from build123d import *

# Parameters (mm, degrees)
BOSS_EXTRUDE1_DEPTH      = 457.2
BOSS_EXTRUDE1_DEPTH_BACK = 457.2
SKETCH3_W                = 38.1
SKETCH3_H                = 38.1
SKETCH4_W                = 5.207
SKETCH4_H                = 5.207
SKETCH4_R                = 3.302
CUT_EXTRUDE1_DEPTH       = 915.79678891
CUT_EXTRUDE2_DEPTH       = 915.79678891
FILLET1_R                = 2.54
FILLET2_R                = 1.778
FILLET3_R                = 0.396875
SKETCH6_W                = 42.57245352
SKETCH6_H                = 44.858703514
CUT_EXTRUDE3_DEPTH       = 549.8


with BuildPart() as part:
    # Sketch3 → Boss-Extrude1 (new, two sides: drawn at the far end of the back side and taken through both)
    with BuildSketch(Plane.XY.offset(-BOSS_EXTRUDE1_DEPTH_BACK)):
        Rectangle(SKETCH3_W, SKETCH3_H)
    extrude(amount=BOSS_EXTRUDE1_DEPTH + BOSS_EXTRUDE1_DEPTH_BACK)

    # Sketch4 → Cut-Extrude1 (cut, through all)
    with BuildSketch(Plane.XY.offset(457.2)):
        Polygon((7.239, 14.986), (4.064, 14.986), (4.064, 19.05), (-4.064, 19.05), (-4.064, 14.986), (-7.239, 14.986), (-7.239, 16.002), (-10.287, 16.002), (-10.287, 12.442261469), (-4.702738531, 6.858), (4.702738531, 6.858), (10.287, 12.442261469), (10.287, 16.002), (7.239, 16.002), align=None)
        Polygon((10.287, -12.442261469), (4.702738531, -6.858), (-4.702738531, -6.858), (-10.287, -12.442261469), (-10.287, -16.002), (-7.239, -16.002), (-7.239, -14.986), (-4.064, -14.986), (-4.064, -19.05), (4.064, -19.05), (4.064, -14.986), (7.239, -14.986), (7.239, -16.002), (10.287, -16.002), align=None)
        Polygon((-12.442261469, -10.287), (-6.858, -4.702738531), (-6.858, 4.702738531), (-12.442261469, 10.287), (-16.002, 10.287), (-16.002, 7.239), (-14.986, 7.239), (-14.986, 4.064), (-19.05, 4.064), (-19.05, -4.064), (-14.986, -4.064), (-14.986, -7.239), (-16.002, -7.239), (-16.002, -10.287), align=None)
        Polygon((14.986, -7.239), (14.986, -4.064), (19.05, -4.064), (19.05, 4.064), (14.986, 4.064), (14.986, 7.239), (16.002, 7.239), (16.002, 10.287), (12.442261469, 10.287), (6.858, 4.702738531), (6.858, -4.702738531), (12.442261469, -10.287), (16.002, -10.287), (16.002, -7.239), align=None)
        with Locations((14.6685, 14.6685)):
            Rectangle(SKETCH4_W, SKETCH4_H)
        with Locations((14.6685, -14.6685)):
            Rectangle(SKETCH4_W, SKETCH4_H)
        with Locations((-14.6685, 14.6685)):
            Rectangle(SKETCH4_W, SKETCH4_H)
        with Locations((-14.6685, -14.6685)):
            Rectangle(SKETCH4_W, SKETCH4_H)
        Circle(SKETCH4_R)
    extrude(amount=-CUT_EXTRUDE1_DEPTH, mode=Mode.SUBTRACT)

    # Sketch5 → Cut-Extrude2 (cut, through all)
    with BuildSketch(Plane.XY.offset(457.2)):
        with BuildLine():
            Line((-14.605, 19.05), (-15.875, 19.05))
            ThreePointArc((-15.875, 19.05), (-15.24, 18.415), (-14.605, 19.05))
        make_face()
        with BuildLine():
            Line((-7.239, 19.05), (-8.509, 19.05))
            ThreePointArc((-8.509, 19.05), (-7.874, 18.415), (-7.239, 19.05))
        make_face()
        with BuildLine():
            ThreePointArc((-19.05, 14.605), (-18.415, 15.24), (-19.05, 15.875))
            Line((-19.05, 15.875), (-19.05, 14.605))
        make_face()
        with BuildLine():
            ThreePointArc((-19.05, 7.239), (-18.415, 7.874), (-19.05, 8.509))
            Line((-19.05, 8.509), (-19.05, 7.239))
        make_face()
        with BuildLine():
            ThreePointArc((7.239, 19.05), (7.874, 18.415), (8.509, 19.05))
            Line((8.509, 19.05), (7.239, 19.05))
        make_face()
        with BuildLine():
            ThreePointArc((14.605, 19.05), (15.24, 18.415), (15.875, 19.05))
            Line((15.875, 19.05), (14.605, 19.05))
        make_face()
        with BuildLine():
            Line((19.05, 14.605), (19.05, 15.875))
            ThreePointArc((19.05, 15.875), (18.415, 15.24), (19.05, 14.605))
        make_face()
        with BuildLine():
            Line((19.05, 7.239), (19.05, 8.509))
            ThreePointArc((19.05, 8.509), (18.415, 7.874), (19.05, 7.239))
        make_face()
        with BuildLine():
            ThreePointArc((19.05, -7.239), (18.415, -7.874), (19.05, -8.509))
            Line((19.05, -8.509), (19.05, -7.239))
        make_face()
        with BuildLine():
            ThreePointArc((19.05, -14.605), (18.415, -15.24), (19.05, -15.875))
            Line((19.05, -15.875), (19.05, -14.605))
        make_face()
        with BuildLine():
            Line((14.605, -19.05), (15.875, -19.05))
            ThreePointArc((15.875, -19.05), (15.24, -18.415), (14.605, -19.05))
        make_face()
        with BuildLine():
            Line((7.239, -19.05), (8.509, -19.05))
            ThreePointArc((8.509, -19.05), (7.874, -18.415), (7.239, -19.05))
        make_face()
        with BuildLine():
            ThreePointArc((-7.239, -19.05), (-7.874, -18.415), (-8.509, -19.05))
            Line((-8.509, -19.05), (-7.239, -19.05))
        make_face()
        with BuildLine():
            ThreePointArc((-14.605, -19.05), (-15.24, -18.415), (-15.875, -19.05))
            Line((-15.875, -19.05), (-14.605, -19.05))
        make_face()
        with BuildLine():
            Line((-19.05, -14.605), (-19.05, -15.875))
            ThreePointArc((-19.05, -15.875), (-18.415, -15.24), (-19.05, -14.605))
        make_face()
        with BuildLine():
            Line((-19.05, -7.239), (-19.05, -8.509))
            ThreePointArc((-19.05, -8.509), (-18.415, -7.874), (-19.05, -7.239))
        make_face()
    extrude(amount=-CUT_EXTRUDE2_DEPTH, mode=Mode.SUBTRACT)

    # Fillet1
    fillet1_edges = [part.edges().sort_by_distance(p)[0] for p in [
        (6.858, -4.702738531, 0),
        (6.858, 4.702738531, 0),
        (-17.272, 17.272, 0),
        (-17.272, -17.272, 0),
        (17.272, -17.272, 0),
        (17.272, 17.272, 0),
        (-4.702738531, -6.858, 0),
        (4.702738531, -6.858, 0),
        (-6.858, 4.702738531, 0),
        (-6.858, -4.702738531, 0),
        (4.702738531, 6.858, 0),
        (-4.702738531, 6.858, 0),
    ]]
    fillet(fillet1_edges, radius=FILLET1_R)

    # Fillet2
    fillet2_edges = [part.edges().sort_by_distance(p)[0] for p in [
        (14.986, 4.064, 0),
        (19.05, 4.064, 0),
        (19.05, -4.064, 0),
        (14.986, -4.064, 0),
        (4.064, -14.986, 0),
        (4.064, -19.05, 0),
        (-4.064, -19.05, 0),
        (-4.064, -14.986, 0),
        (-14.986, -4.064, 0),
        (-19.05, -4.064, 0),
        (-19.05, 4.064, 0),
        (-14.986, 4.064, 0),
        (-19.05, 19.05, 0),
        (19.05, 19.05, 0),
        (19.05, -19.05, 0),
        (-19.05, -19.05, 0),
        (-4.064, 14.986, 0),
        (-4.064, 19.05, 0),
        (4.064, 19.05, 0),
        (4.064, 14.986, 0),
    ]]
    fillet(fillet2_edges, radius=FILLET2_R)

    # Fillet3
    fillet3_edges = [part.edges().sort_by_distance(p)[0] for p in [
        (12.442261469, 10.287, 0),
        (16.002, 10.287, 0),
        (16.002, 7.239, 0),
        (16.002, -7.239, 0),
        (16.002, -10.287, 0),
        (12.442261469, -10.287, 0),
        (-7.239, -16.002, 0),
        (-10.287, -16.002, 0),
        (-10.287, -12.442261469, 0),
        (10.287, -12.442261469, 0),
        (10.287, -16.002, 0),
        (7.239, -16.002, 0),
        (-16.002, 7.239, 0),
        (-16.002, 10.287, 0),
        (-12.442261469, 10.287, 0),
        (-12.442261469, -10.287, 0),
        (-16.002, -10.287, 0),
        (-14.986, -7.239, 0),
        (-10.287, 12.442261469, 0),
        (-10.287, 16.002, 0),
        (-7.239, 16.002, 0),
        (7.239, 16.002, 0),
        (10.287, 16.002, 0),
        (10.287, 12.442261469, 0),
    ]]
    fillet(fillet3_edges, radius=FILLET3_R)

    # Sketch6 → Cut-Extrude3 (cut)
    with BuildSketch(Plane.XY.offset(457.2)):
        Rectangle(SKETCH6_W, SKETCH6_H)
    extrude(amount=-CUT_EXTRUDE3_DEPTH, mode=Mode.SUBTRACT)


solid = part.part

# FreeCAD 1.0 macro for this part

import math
import FreeCAD as App
import Part
import Sketcher
Q = App.Units.Quantity


def edges_at(feature, points):
    """Names of the edges that pass closest to the given points."""
    edges = feature.Shape.Edges
    near = lambda p: min(range(len(edges)), key=lambda i: edges[i].distToShape(Part.Vertex(*p))[0])
    return sorted({f"Edge{near(p) + 1}" for p in points})

doc = App.newDocument("Part")
body = doc.addObject("PartDesign::Body", "Body")

sketch1 = body.newObject("Sketcher::SketchObject", "Sketch")
sketch1.AttachmentSupport = (doc.getObject("XY_Plane"), [""])
sketch1.MapMode = "FlatFace"
sketch1.addGeometry(Part.LineSegment(App.Vector(-19, 19, 0), App.Vector(-19, -19, 0)), False)
sketch1.addGeometry(Part.LineSegment(App.Vector(-19, -19, 0), App.Vector(19, -19, 0)), False)
sketch1.addGeometry(Part.LineSegment(App.Vector(19, -19, 0), App.Vector(19, 19, 0)), False)
sketch1.addGeometry(Part.LineSegment(App.Vector(19, 19, 0), App.Vector(-19, 19, 0)), False)
sketch1.addConstraint(Sketcher.Constraint("Coincident", 0, 2, 1, 1))
sketch1.addConstraint(Sketcher.Constraint("Coincident", 1, 2, 2, 1))
sketch1.addConstraint(Sketcher.Constraint("Coincident", 2, 2, 3, 1))
sketch1.addConstraint(Sketcher.Constraint("Coincident", 3, 2, 0, 1))
sketch1.addConstraint(Sketcher.Constraint("Vertical", 0))
sketch1.addConstraint(Sketcher.Constraint("Horizontal", 1))
sketch1.addConstraint(Sketcher.Constraint("Vertical", 2))
sketch1.addConstraint(Sketcher.Constraint("Horizontal", 3))
sketch1.addConstraint(Sketcher.Constraint("Symmetric", 0, 2, 2, 2, -1, 1))
sketch1.addConstraint(Sketcher.Constraint("Equal", 3, 0))
sketch1.addConstraint(Sketcher.Constraint("DistanceX", 1, 1, 1, 2, Q("1.5 in")))
pad1 = body.newObject("PartDesign::Pad", "Pad")
pad1.Profile = sketch1
pad1.Type = "TwoLengths"
pad1.Length = Q("18 in")
pad1.Length2 = Q("18 in")

sketch2 = body.newObject("Sketcher::SketchObject", "Sketch001")
sketch2.AttachmentSupport = (doc.getObject("XY_Plane"), [""])
sketch2.MapMode = "FlatFace"
sketch2.AttachmentOffset = App.Placement(App.Vector(0, 0, 18 * 25.4), App.Rotation())
sketch2.addGeometry(Part.LineSegment(App.Vector(7.2, 15, 0), App.Vector(4.1, 15, 0)), False)
sketch2.addGeometry(Part.LineSegment(App.Vector(4.1, 15, 0), App.Vector(4.1, 19.1, 0)), False)
sketch2.addGeometry(Part.LineSegment(App.Vector(4.1, 19.1, 0), App.Vector(-4.1, 19.1, 0)), False)
sketch2.addGeometry(Part.LineSegment(App.Vector(-4.1, 19.1, 0), App.Vector(-4.1, 15, 0)), False)
sketch2.addGeometry(Part.LineSegment(App.Vector(-4.1, 15, 0), App.Vector(-7.2, 15, 0)), False)
sketch2.addGeometry(Part.LineSegment(App.Vector(-7.2, 15, 0), App.Vector(-7.2, 16, 0)), False)
sketch2.addGeometry(Part.LineSegment(App.Vector(-7.2, 16, 0), App.Vector(-10.3, 16, 0)), False)
sketch2.addGeometry(Part.LineSegment(App.Vector(-10.3, 16, 0), App.Vector(-10.3, 12.4, 0)), False)
sketch2.addGeometry(Part.LineSegment(App.Vector(-10.3, 12.4, 0), App.Vector(-4.7, 6.9, 0)), False)
sketch2.addGeometry(Part.LineSegment(App.Vector(-4.7, 6.9, 0), App.Vector(4.7, 6.9, 0)), False)
sketch2.addGeometry(Part.LineSegment(App.Vector(4.7, 6.9, 0), App.Vector(10.3, 12.4, 0)), False)
sketch2.addGeometry(Part.LineSegment(App.Vector(10.3, 12.4, 0), App.Vector(10.3, 16, 0)), False)
sketch2.addGeometry(Part.LineSegment(App.Vector(10.3, 16, 0), App.Vector(7.2, 16, 0)), False)
sketch2.addGeometry(Part.LineSegment(App.Vector(7.2, 16, 0), App.Vector(7.2, 15, 0)), False)
sketch2.addGeometry(Part.LineSegment(App.Vector(10.3, -12.4, 0), App.Vector(4.7, -6.9, 0)), False)
sketch2.addGeometry(Part.LineSegment(App.Vector(4.7, -6.9, 0), App.Vector(-4.7, -6.9, 0)), False)
sketch2.addGeometry(Part.LineSegment(App.Vector(-4.7, -6.9, 0), App.Vector(-10.3, -12.4, 0)), False)
sketch2.addGeometry(Part.LineSegment(App.Vector(-10.3, -12.4, 0), App.Vector(-10.3, -16, 0)), False)
sketch2.addGeometry(Part.LineSegment(App.Vector(-10.3, -16, 0), App.Vector(-7.2, -16, 0)), False)
sketch2.addGeometry(Part.LineSegment(App.Vector(-7.2, -16, 0), App.Vector(-7.2, -15, 0)), False)
sketch2.addGeometry(Part.LineSegment(App.Vector(-7.2, -15, 0), App.Vector(-4.1, -15, 0)), False)
sketch2.addGeometry(Part.LineSegment(App.Vector(-4.1, -15, 0), App.Vector(-4.1, -19.1, 0)), False)
sketch2.addGeometry(Part.LineSegment(App.Vector(-4.1, -19.1, 0), App.Vector(4.1, -19.1, 0)), False)
sketch2.addGeometry(Part.LineSegment(App.Vector(4.1, -19.1, 0), App.Vector(4.1, -15, 0)), False)
sketch2.addGeometry(Part.LineSegment(App.Vector(4.1, -15, 0), App.Vector(7.2, -15, 0)), False)
sketch2.addGeometry(Part.LineSegment(App.Vector(7.2, -15, 0), App.Vector(7.2, -16, 0)), False)
sketch2.addGeometry(Part.LineSegment(App.Vector(7.2, -16, 0), App.Vector(10.3, -16, 0)), False)
sketch2.addGeometry(Part.LineSegment(App.Vector(10.3, -16, 0), App.Vector(10.3, -12.4, 0)), False)
sketch2.addGeometry(Part.LineSegment(App.Vector(-12.4, -10.3, 0), App.Vector(-6.9, -4.7, 0)), False)
sketch2.addGeometry(Part.LineSegment(App.Vector(-6.9, -4.7, 0), App.Vector(-6.9, 4.7, 0)), False)
sketch2.addGeometry(Part.LineSegment(App.Vector(-6.9, 4.7, 0), App.Vector(-12.4, 10.3, 0)), False)
sketch2.addGeometry(Part.LineSegment(App.Vector(-12.4, 10.3, 0), App.Vector(-16, 10.3, 0)), False)
sketch2.addGeometry(Part.LineSegment(App.Vector(-16, 10.3, 0), App.Vector(-16, 7.2, 0)), False)
sketch2.addGeometry(Part.LineSegment(App.Vector(-16, 7.2, 0), App.Vector(-15, 7.2, 0)), False)
sketch2.addGeometry(Part.LineSegment(App.Vector(-15, 7.2, 0), App.Vector(-15, 4.1, 0)), False)
sketch2.addGeometry(Part.LineSegment(App.Vector(-15, 4.1, 0), App.Vector(-19.1, 4.1, 0)), False)
sketch2.addGeometry(Part.LineSegment(App.Vector(-19.1, 4.1, 0), App.Vector(-19.1, -4.1, 0)), False)
sketch2.addGeometry(Part.LineSegment(App.Vector(-19.1, -4.1, 0), App.Vector(-15, -4.1, 0)), False)
sketch2.addGeometry(Part.LineSegment(App.Vector(-15, -4.1, 0), App.Vector(-15, -7.2, 0)), False)
sketch2.addGeometry(Part.LineSegment(App.Vector(-15, -7.2, 0), App.Vector(-16, -7.2, 0)), False)
sketch2.addGeometry(Part.LineSegment(App.Vector(-16, -7.2, 0), App.Vector(-16, -10.3, 0)), False)
sketch2.addGeometry(Part.LineSegment(App.Vector(-16, -10.3, 0), App.Vector(-12.4, -10.3, 0)), False)
sketch2.addGeometry(Part.LineSegment(App.Vector(15, -7.2, 0), App.Vector(15, -4.1, 0)), False)
sketch2.addGeometry(Part.LineSegment(App.Vector(15, -4.1, 0), App.Vector(19.1, -4.1, 0)), False)
sketch2.addGeometry(Part.LineSegment(App.Vector(19.1, -4.1, 0), App.Vector(19.1, 4.1, 0)), False)
sketch2.addGeometry(Part.LineSegment(App.Vector(19.1, 4.1, 0), App.Vector(15, 4.1, 0)), False)
sketch2.addGeometry(Part.LineSegment(App.Vector(15, 4.1, 0), App.Vector(15, 7.2, 0)), False)
sketch2.addGeometry(Part.LineSegment(App.Vector(15, 7.2, 0), App.Vector(16, 7.2, 0)), False)
sketch2.addGeometry(Part.LineSegment(App.Vector(16, 7.2, 0), App.Vector(16, 10.3, 0)), False)
sketch2.addGeometry(Part.LineSegment(App.Vector(16, 10.3, 0), App.Vector(12.4, 10.3, 0)), False)
sketch2.addGeometry(Part.LineSegment(App.Vector(12.4, 10.3, 0), App.Vector(6.9, 4.7, 0)), False)
sketch2.addGeometry(Part.LineSegment(App.Vector(6.9, 4.7, 0), App.Vector(6.9, -4.7, 0)), False)
sketch2.addGeometry(Part.LineSegment(App.Vector(6.9, -4.7, 0), App.Vector(12.4, -10.3, 0)), False)
sketch2.addGeometry(Part.LineSegment(App.Vector(12.4, -10.3, 0), App.Vector(16, -10.3, 0)), False)
sketch2.addGeometry(Part.LineSegment(App.Vector(16, -10.3, 0), App.Vector(16, -7.2, 0)), False)
sketch2.addGeometry(Part.LineSegment(App.Vector(16, -7.2, 0), App.Vector(15, -7.2, 0)), False)
sketch2.addGeometry(Part.LineSegment(App.Vector(12.1, 17.3, 0), App.Vector(12.1, 12.1, 0)), False)
sketch2.addGeometry(Part.LineSegment(App.Vector(12.1, 12.1, 0), App.Vector(17.3, 12.1, 0)), False)
sketch2.addGeometry(Part.LineSegment(App.Vector(17.3, 12.1, 0), App.Vector(17.3, 17.3, 0)), False)
sketch2.addGeometry(Part.LineSegment(App.Vector(17.3, 17.3, 0), App.Vector(12.1, 17.3, 0)), False)
sketch2.addGeometry(Part.LineSegment(App.Vector(12.1, -12.1, 0), App.Vector(12.1, -17.3, 0)), False)
sketch2.addGeometry(Part.LineSegment(App.Vector(12.1, -17.3, 0), App.Vector(17.3, -17.3, 0)), False)
sketch2.addGeometry(Part.LineSegment(App.Vector(17.3, -17.3, 0), App.Vector(17.3, -12.1, 0)), False)
sketch2.addGeometry(Part.LineSegment(App.Vector(17.3, -12.1, 0), App.Vector(12.1, -12.1, 0)), False)
sketch2.addGeometry(Part.LineSegment(App.Vector(-17.3, 17.3, 0), App.Vector(-17.3, 12.1, 0)), False)
sketch2.addGeometry(Part.LineSegment(App.Vector(-17.3, 12.1, 0), App.Vector(-12.1, 12.1, 0)), False)
sketch2.addGeometry(Part.LineSegment(App.Vector(-12.1, 12.1, 0), App.Vector(-12.1, 17.3, 0)), False)
sketch2.addGeometry(Part.LineSegment(App.Vector(-12.1, 17.3, 0), App.Vector(-17.3, 17.3, 0)), False)
sketch2.addGeometry(Part.LineSegment(App.Vector(-17.3, -12.1, 0), App.Vector(-17.3, -17.3, 0)), False)
sketch2.addGeometry(Part.LineSegment(App.Vector(-17.3, -17.3, 0), App.Vector(-12.1, -17.3, 0)), False)
sketch2.addGeometry(Part.LineSegment(App.Vector(-12.1, -17.3, 0), App.Vector(-12.1, -12.1, 0)), False)
sketch2.addGeometry(Part.LineSegment(App.Vector(-12.1, -12.1, 0), App.Vector(-17.3, -12.1, 0)), False)
sketch2.addGeometry(Part.Circle(App.Vector(0, 0, 0), App.Vector(0, 0, 1), 3.3), False)
sketch2.addConstraint(Sketcher.Constraint("Coincident", 0, 2, 1, 1))
sketch2.addConstraint(Sketcher.Constraint("Coincident", 1, 2, 2, 1))
sketch2.addConstraint(Sketcher.Constraint("Coincident", 2, 2, 3, 1))
sketch2.addConstraint(Sketcher.Constraint("Coincident", 3, 2, 4, 1))
sketch2.addConstraint(Sketcher.Constraint("Coincident", 4, 2, 5, 1))
sketch2.addConstraint(Sketcher.Constraint("Coincident", 5, 2, 6, 1))
sketch2.addConstraint(Sketcher.Constraint("Coincident", 6, 2, 7, 1))
sketch2.addConstraint(Sketcher.Constraint("Coincident", 7, 2, 8, 1))
sketch2.addConstraint(Sketcher.Constraint("Coincident", 8, 2, 9, 1))
sketch2.addConstraint(Sketcher.Constraint("Coincident", 9, 2, 10, 1))
sketch2.addConstraint(Sketcher.Constraint("Coincident", 10, 2, 11, 1))
sketch2.addConstraint(Sketcher.Constraint("Coincident", 11, 2, 12, 1))
sketch2.addConstraint(Sketcher.Constraint("Coincident", 12, 2, 13, 1))
sketch2.addConstraint(Sketcher.Constraint("Coincident", 13, 2, 0, 1))
sketch2.addConstraint(Sketcher.Constraint("Coincident", 14, 2, 15, 1))
sketch2.addConstraint(Sketcher.Constraint("Coincident", 15, 2, 16, 1))
sketch2.addConstraint(Sketcher.Constraint("Coincident", 16, 2, 17, 1))
sketch2.addConstraint(Sketcher.Constraint("Coincident", 17, 2, 18, 1))
sketch2.addConstraint(Sketcher.Constraint("Coincident", 18, 2, 19, 1))
sketch2.addConstraint(Sketcher.Constraint("Coincident", 19, 2, 20, 1))
sketch2.addConstraint(Sketcher.Constraint("Coincident", 20, 2, 21, 1))
sketch2.addConstraint(Sketcher.Constraint("Coincident", 21, 2, 22, 1))
sketch2.addConstraint(Sketcher.Constraint("Coincident", 22, 2, 23, 1))
sketch2.addConstraint(Sketcher.Constraint("Coincident", 23, 2, 24, 1))
sketch2.addConstraint(Sketcher.Constraint("Coincident", 24, 2, 25, 1))
sketch2.addConstraint(Sketcher.Constraint("Coincident", 25, 2, 26, 1))
sketch2.addConstraint(Sketcher.Constraint("Coincident", 26, 2, 27, 1))
sketch2.addConstraint(Sketcher.Constraint("Coincident", 27, 2, 14, 1))
sketch2.addConstraint(Sketcher.Constraint("Coincident", 28, 2, 29, 1))
sketch2.addConstraint(Sketcher.Constraint("Coincident", 29, 2, 30, 1))
sketch2.addConstraint(Sketcher.Constraint("Coincident", 30, 2, 31, 1))
sketch2.addConstraint(Sketcher.Constraint("Coincident", 31, 2, 32, 1))
sketch2.addConstraint(Sketcher.Constraint("Coincident", 32, 2, 33, 1))
sketch2.addConstraint(Sketcher.Constraint("Coincident", 33, 2, 34, 1))
sketch2.addConstraint(Sketcher.Constraint("Coincident", 34, 2, 35, 1))
sketch2.addConstraint(Sketcher.Constraint("Coincident", 35, 2, 36, 1))
sketch2.addConstraint(Sketcher.Constraint("Coincident", 36, 2, 37, 1))
sketch2.addConstraint(Sketcher.Constraint("Coincident", 37, 2, 38, 1))
sketch2.addConstraint(Sketcher.Constraint("Coincident", 38, 2, 39, 1))
sketch2.addConstraint(Sketcher.Constraint("Coincident", 39, 2, 40, 1))
sketch2.addConstraint(Sketcher.Constraint("Coincident", 40, 2, 41, 1))
sketch2.addConstraint(Sketcher.Constraint("Coincident", 41, 2, 28, 1))
sketch2.addConstraint(Sketcher.Constraint("Coincident", 42, 2, 43, 1))
sketch2.addConstraint(Sketcher.Constraint("Coincident", 43, 2, 44, 1))
sketch2.addConstraint(Sketcher.Constraint("Coincident", 44, 2, 45, 1))
sketch2.addConstraint(Sketcher.Constraint("Coincident", 45, 2, 46, 1))
sketch2.addConstraint(Sketcher.Constraint("Coincident", 46, 2, 47, 1))
sketch2.addConstraint(Sketcher.Constraint("Coincident", 47, 2, 48, 1))
sketch2.addConstraint(Sketcher.Constraint("Coincident", 48, 2, 49, 1))
sketch2.addConstraint(Sketcher.Constraint("Coincident", 49, 2, 50, 1))
sketch2.addConstraint(Sketcher.Constraint("Coincident", 50, 2, 51, 1))
sketch2.addConstraint(Sketcher.Constraint("Coincident", 51, 2, 52, 1))
sketch2.addConstraint(Sketcher.Constraint("Coincident", 52, 2, 53, 1))
sketch2.addConstraint(Sketcher.Constraint("Coincident", 53, 2, 54, 1))
sketch2.addConstraint(Sketcher.Constraint("Coincident", 54, 2, 55, 1))
sketch2.addConstraint(Sketcher.Constraint("Coincident", 55, 2, 42, 1))
sketch2.addConstraint(Sketcher.Constraint("Coincident", 56, 2, 57, 1))
sketch2.addConstraint(Sketcher.Constraint("Coincident", 57, 2, 58, 1))
sketch2.addConstraint(Sketcher.Constraint("Coincident", 58, 2, 59, 1))
sketch2.addConstraint(Sketcher.Constraint("Coincident", 59, 2, 56, 1))
sketch2.addConstraint(Sketcher.Constraint("Coincident", 60, 2, 61, 1))
sketch2.addConstraint(Sketcher.Constraint("Coincident", 61, 2, 62, 1))
sketch2.addConstraint(Sketcher.Constraint("Coincident", 62, 2, 63, 1))
sketch2.addConstraint(Sketcher.Constraint("Coincident", 63, 2, 60, 1))
sketch2.addConstraint(Sketcher.Constraint("Coincident", 64, 2, 65, 1))
sketch2.addConstraint(Sketcher.Constraint("Coincident", 65, 2, 66, 1))
sketch2.addConstraint(Sketcher.Constraint("Coincident", 66, 2, 67, 1))
sketch2.addConstraint(Sketcher.Constraint("Coincident", 67, 2, 64, 1))
sketch2.addConstraint(Sketcher.Constraint("Coincident", 68, 2, 69, 1))
sketch2.addConstraint(Sketcher.Constraint("Coincident", 69, 2, 70, 1))
sketch2.addConstraint(Sketcher.Constraint("Coincident", 70, 2, 71, 1))
sketch2.addConstraint(Sketcher.Constraint("Coincident", 71, 2, 68, 1))
sketch2.addConstraint(Sketcher.Constraint("Horizontal", 0))
sketch2.addConstraint(Sketcher.Constraint("Vertical", 1))
sketch2.addConstraint(Sketcher.Constraint("Horizontal", 2))
sketch2.addConstraint(Sketcher.Constraint("Vertical", 3))
sketch2.addConstraint(Sketcher.Constraint("Horizontal", 4))
sketch2.addConstraint(Sketcher.Constraint("Vertical", 5))
sketch2.addConstraint(Sketcher.Constraint("Horizontal", 6))
sketch2.addConstraint(Sketcher.Constraint("Vertical", 7))
sketch2.addConstraint(Sketcher.Constraint("Horizontal", 9))
sketch2.addConstraint(Sketcher.Constraint("Vertical", 11))
sketch2.addConstraint(Sketcher.Constraint("Horizontal", 12))
sketch2.addConstraint(Sketcher.Constraint("Vertical", 13))
sketch2.addConstraint(Sketcher.Constraint("Horizontal", 15))
sketch2.addConstraint(Sketcher.Constraint("Vertical", 17))
sketch2.addConstraint(Sketcher.Constraint("Horizontal", 18))
sketch2.addConstraint(Sketcher.Constraint("Vertical", 19))
sketch2.addConstraint(Sketcher.Constraint("Horizontal", 20))
sketch2.addConstraint(Sketcher.Constraint("Vertical", 21))
sketch2.addConstraint(Sketcher.Constraint("Horizontal", 22))
sketch2.addConstraint(Sketcher.Constraint("Vertical", 23))
sketch2.addConstraint(Sketcher.Constraint("Horizontal", 24))
sketch2.addConstraint(Sketcher.Constraint("Vertical", 25))
sketch2.addConstraint(Sketcher.Constraint("Horizontal", 26))
sketch2.addConstraint(Sketcher.Constraint("Vertical", 27))
sketch2.addConstraint(Sketcher.Constraint("Vertical", 29))
sketch2.addConstraint(Sketcher.Constraint("Horizontal", 31))
sketch2.addConstraint(Sketcher.Constraint("Vertical", 32))
sketch2.addConstraint(Sketcher.Constraint("Horizontal", 33))
sketch2.addConstraint(Sketcher.Constraint("Vertical", 34))
sketch2.addConstraint(Sketcher.Constraint("Horizontal", 35))
sketch2.addConstraint(Sketcher.Constraint("Vertical", 36))
sketch2.addConstraint(Sketcher.Constraint("Horizontal", 37))
sketch2.addConstraint(Sketcher.Constraint("Vertical", 38))
sketch2.addConstraint(Sketcher.Constraint("Horizontal", 39))
sketch2.addConstraint(Sketcher.Constraint("Vertical", 40))
sketch2.addConstraint(Sketcher.Constraint("Horizontal", 41))
sketch2.addConstraint(Sketcher.Constraint("Vertical", 42))
sketch2.addConstraint(Sketcher.Constraint("Horizontal", 43))
sketch2.addConstraint(Sketcher.Constraint("Vertical", 44))
sketch2.addConstraint(Sketcher.Constraint("Horizontal", 45))
sketch2.addConstraint(Sketcher.Constraint("Vertical", 46))
sketch2.addConstraint(Sketcher.Constraint("Horizontal", 47))
sketch2.addConstraint(Sketcher.Constraint("Vertical", 48))
sketch2.addConstraint(Sketcher.Constraint("Horizontal", 49))
sketch2.addConstraint(Sketcher.Constraint("Vertical", 51))
sketch2.addConstraint(Sketcher.Constraint("Horizontal", 53))
sketch2.addConstraint(Sketcher.Constraint("Vertical", 54))
sketch2.addConstraint(Sketcher.Constraint("Horizontal", 55))
sketch2.addConstraint(Sketcher.Constraint("Vertical", 56))
sketch2.addConstraint(Sketcher.Constraint("Horizontal", 57))
sketch2.addConstraint(Sketcher.Constraint("Vertical", 58))
sketch2.addConstraint(Sketcher.Constraint("Horizontal", 59))
sketch2.addConstraint(Sketcher.Constraint("Vertical", 60))
sketch2.addConstraint(Sketcher.Constraint("Horizontal", 61))
sketch2.addConstraint(Sketcher.Constraint("Vertical", 62))
sketch2.addConstraint(Sketcher.Constraint("Horizontal", 63))
sketch2.addConstraint(Sketcher.Constraint("Vertical", 64))
sketch2.addConstraint(Sketcher.Constraint("Horizontal", 65))
sketch2.addConstraint(Sketcher.Constraint("Vertical", 66))
sketch2.addConstraint(Sketcher.Constraint("Horizontal", 67))
sketch2.addConstraint(Sketcher.Constraint("Vertical", 68))
sketch2.addConstraint(Sketcher.Constraint("Horizontal", 69))
sketch2.addConstraint(Sketcher.Constraint("Vertical", 70))
sketch2.addConstraint(Sketcher.Constraint("Horizontal", 71))
sketch2.addConstraint(Sketcher.Constraint("Coincident", 72, 3, -1, 1))
sketch2.addConstraint(Sketcher.Constraint("Symmetric", 8, 2, 14, 2, -1, 1))
sketch2.addConstraint(Sketcher.Constraint("Symmetric", 10, 2, 16, 2, -1, 1))
sketch2.addConstraint(Sketcher.Constraint("Symmetric", 12, 2, 18, 2, -1, 1))
sketch2.addConstraint(Sketcher.Constraint("Symmetric", 0, 2, 20, 2, -1, 1))
sketch2.addConstraint(Sketcher.Constraint("Symmetric", 2, 2, 22, 2, -1, 1))
sketch2.addConstraint(Sketcher.Constraint("Symmetric", 4, 2, 24, 2, -1, 1))
sketch2.addConstraint(Sketcher.Constraint("Symmetric", 6, 2, 26, 2, -1, 1))
sketch2.addConstraint(Sketcher.Constraint("Symmetric", 34, 2, 42, 2, -1, 1))
sketch2.addConstraint(Sketcher.Constraint("Symmetric", 36, 2, 44, 2, -1, 1))
sketch2.addConstraint(Sketcher.Constraint("Symmetric", 38, 2, 46, 2, -1, 1))
sketch2.addConstraint(Sketcher.Constraint("Symmetric", 40, 2, 48, 2, -1, 1))
sketch2.addConstraint(Sketcher.Constraint("Symmetric", 28, 2, 50, 2, -1, 1))
sketch2.addConstraint(Sketcher.Constraint("Symmetric", 30, 2, 52, 2, -1, 1))
sketch2.addConstraint(Sketcher.Constraint("Symmetric", 32, 2, 54, 2, -1, 1))
sketch2.addConstraint(Sketcher.Constraint("Symmetric", 62, 2, 64, 2, -1, 1))
sketch2.addConstraint(Sketcher.Constraint("Symmetric", 60, 2, 66, 2, -1, 1))
sketch2.addConstraint(Sketcher.Constraint("Symmetric", 58, 2, 68, 2, -1, 1))
sketch2.addConstraint(Sketcher.Constraint("Symmetric", 56, 2, 70, 2, -1, 1))
sketch2.addConstraint(Sketcher.Constraint("Symmetric", 0, 2, 3, 2, -2))
sketch2.addConstraint(Sketcher.Constraint("Symmetric", 7, 2, 10, 2, -2))
sketch2.addConstraint(Sketcher.Constraint("Symmetric", 5, 2, 12, 2, -2))
sketch2.addConstraint(Sketcher.Constraint("Symmetric", 37, 2, 42, 2, -2))
sketch2.addConstraint(Sketcher.Constraint("Symmetric", 32, 2, 47, 2, -2))
sketch2.addConstraint(Sketcher.Constraint("Symmetric", 30, 2, 49, 2, -2))
sketch2.addConstraint(Sketcher.Constraint("Symmetric", 57, 2, 64, 2, -2))
sketch2.addConstraint(Sketcher.Constraint("Symmetric", 59, 2, 66, 2, -2))
sketch2.addConstraint(Sketcher.Constraint("Perpendicular", 8, 10))
sketch2.addConstraint(Sketcher.Constraint("Perpendicular", 10, 14))
sketch2.addConstraint(Sketcher.Constraint("Perpendicular", 14, 16))
sketch2.addConstraint(Sketcher.Constraint("Parallel", 16, 28))
sketch2.addConstraint(Sketcher.Constraint("Perpendicular", 28, 30))
sketch2.addConstraint(Sketcher.Constraint("Perpendicular", 30, 50))
sketch2.addConstraint(Sketcher.Constraint("Perpendicular", 50, 52))
sketch2.addConstraint(Sketcher.Constraint("Horizontal", 29, 2, 50, 2))
sketch2.addConstraint(Sketcher.Constraint("Equal", 45, 1))
sketch2.addConstraint(Sketcher.Constraint("Equal", 55, 5))
sketch2.addConstraint(Sketcher.Constraint("Equal", 53, 7))
sketch2.addConstraint(Sketcher.Constraint("Equal", 15, 29))
sketch2.addConstraint(Sketcher.Constraint("Equal", 26, 32))
sketch2.addConstraint(Sketcher.Constraint("Equal", 24, 34))
sketch2.addConstraint(Sketcher.Constraint("Equal", 22, 36))
sketch2.addConstraint(Sketcher.Constraint("Equal", 71, 56))
sketch2.addConstraint(Sketcher.Constraint("Diameter", 72, Q("0.26 in")))
sketch2.addConstraint(Sketcher.Constraint("DistanceX", 2, 2, 2, 1, Q("0.32 in")))
sketch2.addConstraint(Sketcher.Constraint("DistanceX", 6, 2, 6, 1, Q("0.12 in")))
sketch2.addConstraint(Sketcher.Constraint("DistanceX", 33, 1, 33, 2, Q("0.04 in")))
sketch2.addConstraint(Sketcher.Constraint("DistanceX", 35, 2, 35, 1, Q("0.16 in")))
sketch2.addConstraint(Sketcher.Constraint("DistanceX", 0, 2, 0, 1, Q("0.125 in")))
sketch2.addConstraint(Sketcher.Constraint("DistanceX", 57, 1, 57, 2, Q("0.205 in")))
sketch2.addConstraint(Sketcher.Constraint("DistanceY", -1, 1, 0, 2, Q("0.59 in")))
sketch2.addConstraint(Sketcher.Constraint("DistanceY", -1, 1, 8, 2, Q("0.27 in")))
sketch2.addConstraint(Sketcher.Constraint("DistanceX", 28, 2, -1, 1, Q("0.27 in")))
sketch2.addConstraint(Sketcher.Constraint("DistanceX", -1, 1, 57, 2, Q("0.68 in")))
sketch2.addConstraint(Sketcher.Constraint("DistanceY", -1, 1, 58, 2, Q("0.68 in")))
sketch2.addConstraint(Sketcher.Constraint("DistanceX", 31, 2, 31, 1, 3.559739))
pocket1 = body.newObject("PartDesign::Pocket", "Pocket")
pocket1.Profile = sketch2
pocket1.Type = "ThroughAll"

sketch3 = body.newObject("Sketcher::SketchObject", "Sketch002")
sketch3.AttachmentSupport = (doc.getObject("XY_Plane"), [""])
sketch3.MapMode = "FlatFace"
sketch3.AttachmentOffset = App.Placement(App.Vector(0, 0, 18 * 25.4), App.Rotation())
sketch3.addGeometry(Part.LineSegment(App.Vector(-14.6, 19.1, 0), App.Vector(-15.9, 19.1, 0)), False)
sketch3.addGeometry(Part.ArcOfCircle(Part.Circle(App.Vector(-15.2, 19.1, 0), App.Vector(0, 0, 1), 0.6), math.radians(180), math.radians(360)), False)
sketch3.addGeometry(Part.LineSegment(App.Vector(-7.2, 19.1, 0), App.Vector(-8.5, 19.1, 0)), False)
sketch3.addGeometry(Part.ArcOfCircle(Part.Circle(App.Vector(-7.9, 19.1, 0), App.Vector(0, 0, 1), 0.6), math.radians(180), math.radians(360)), False)
sketch3.addGeometry(Part.ArcOfCircle(Part.Circle(App.Vector(-19.1, 15.2, 0), App.Vector(0, 0, 1), 0.6), math.radians(-90), math.radians(90)), False)
sketch3.addGeometry(Part.LineSegment(App.Vector(-19.1, 15.9, 0), App.Vector(-19.1, 14.6, 0)), False)
sketch3.addGeometry(Part.ArcOfCircle(Part.Circle(App.Vector(-19.1, 7.9, 0), App.Vector(0, 0, 1), 0.6), math.radians(-90), math.radians(90)), False)
sketch3.addGeometry(Part.LineSegment(App.Vector(-19.1, 8.5, 0), App.Vector(-19.1, 7.2, 0)), False)
sketch3.addGeometry(Part.ArcOfCircle(Part.Circle(App.Vector(7.9, 19.1, 0), App.Vector(0, 0, 1), 0.6), math.radians(180), math.radians(360)), False)
sketch3.addGeometry(Part.LineSegment(App.Vector(8.5, 19.1, 0), App.Vector(7.2, 19.1, 0)), False)
sketch3.addGeometry(Part.ArcOfCircle(Part.Circle(App.Vector(15.2, 19.1, 0), App.Vector(0, 0, 1), 0.6), math.radians(180), math.radians(360)), False)
sketch3.addGeometry(Part.LineSegment(App.Vector(15.9, 19.1, 0), App.Vector(14.6, 19.1, 0)), False)
sketch3.addGeometry(Part.LineSegment(App.Vector(19.1, 14.6, 0), App.Vector(19.1, 15.9, 0)), False)
sketch3.addGeometry(Part.ArcOfCircle(Part.Circle(App.Vector(19.1, 15.2, 0), App.Vector(0, 0, 1), 0.6), math.radians(90), math.radians(270)), False)
sketch3.addGeometry(Part.LineSegment(App.Vector(19.1, 7.2, 0), App.Vector(19.1, 8.5, 0)), False)
sketch3.addGeometry(Part.ArcOfCircle(Part.Circle(App.Vector(19.1, 7.9, 0), App.Vector(0, 0, 1), 0.6), math.radians(90), math.radians(270)), False)
sketch3.addGeometry(Part.ArcOfCircle(Part.Circle(App.Vector(19.1, -7.9, 0), App.Vector(0, 0, 1), 0.6), math.radians(90), math.radians(270)), False)
sketch3.addGeometry(Part.LineSegment(App.Vector(19.1, -8.5, 0), App.Vector(19.1, -7.2, 0)), False)
sketch3.addGeometry(Part.ArcOfCircle(Part.Circle(App.Vector(19.1, -15.2, 0), App.Vector(0, 0, 1), 0.6), math.radians(90), math.radians(270)), False)
sketch3.addGeometry(Part.LineSegment(App.Vector(19.1, -15.9, 0), App.Vector(19.1, -14.6, 0)), False)
sketch3.addGeometry(Part.LineSegment(App.Vector(14.6, -19.1, 0), App.Vector(15.9, -19.1, 0)), False)
sketch3.addGeometry(Part.ArcOfCircle(Part.Circle(App.Vector(15.2, -19.1, 0), App.Vector(0, 0, 1), 0.6), math.radians(0), math.radians(180)), False)
sketch3.addGeometry(Part.LineSegment(App.Vector(7.2, -19.1, 0), App.Vector(8.5, -19.1, 0)), False)
sketch3.addGeometry(Part.ArcOfCircle(Part.Circle(App.Vector(7.9, -19.1, 0), App.Vector(0, 0, 1), 0.6), math.radians(0), math.radians(180)), False)
sketch3.addGeometry(Part.ArcOfCircle(Part.Circle(App.Vector(-7.9, -19.1, 0), App.Vector(0, 0, 1), 0.6), math.radians(0), math.radians(180)), False)
sketch3.addGeometry(Part.LineSegment(App.Vector(-8.5, -19.1, 0), App.Vector(-7.2, -19.1, 0)), False)
sketch3.addGeometry(Part.ArcOfCircle(Part.Circle(App.Vector(-15.2, -19.1, 0), App.Vector(0, 0, 1), 0.6), math.radians(0), math.radians(180)), False)
sketch3.addGeometry(Part.LineSegment(App.Vector(-15.9, -19.1, 0), App.Vector(-14.6, -19.1, 0)), False)
sketch3.addGeometry(Part.LineSegment(App.Vector(-19.1, -14.6, 0), App.Vector(-19.1, -15.9, 0)), False)
sketch3.addGeometry(Part.ArcOfCircle(Part.Circle(App.Vector(-19.1, -15.2, 0), App.Vector(0, 0, 1), 0.6), math.radians(-90), math.radians(90)), False)
sketch3.addGeometry(Part.LineSegment(App.Vector(-19.1, -7.2, 0), App.Vector(-19.1, -8.5, 0)), False)
sketch3.addGeometry(Part.ArcOfCircle(Part.Circle(App.Vector(-19.1, -7.9, 0), App.Vector(0, 0, 1), 0.6), math.radians(-90), math.radians(90)), False)
sketch3.addConstraint(Sketcher.Constraint("Coincident", 0, 1, 1, 2))
sketch3.addConstraint(Sketcher.Constraint("Coincident", 1, 1, 0, 2))
sketch3.addConstraint(Sketcher.Constraint("Coincident", 2, 1, 3, 2))
sketch3.addConstraint(Sketcher.Constraint("Coincident", 3, 1, 2, 2))
sketch3.addConstraint(Sketcher.Constraint("Coincident", 4, 1, 5, 2))
sketch3.addConstraint(Sketcher.Constraint("Coincident", 5, 1, 4, 2))
sketch3.addConstraint(Sketcher.Constraint("Coincident", 6, 1, 7, 2))
sketch3.addConstraint(Sketcher.Constraint("Coincident", 7, 1, 6, 2))
sketch3.addConstraint(Sketcher.Constraint("Coincident", 8, 1, 9, 2))
sketch3.addConstraint(Sketcher.Constraint("Coincident", 9, 1, 8, 2))
sketch3.addConstraint(Sketcher.Constraint("Coincident", 10, 1, 11, 2))
sketch3.addConstraint(Sketcher.Constraint("Coincident", 11, 1, 10, 2))
sketch3.addConstraint(Sketcher.Constraint("Coincident", 12, 1, 13, 2))
sketch3.addConstraint(Sketcher.Constraint("Coincident", 13, 1, 12, 2))
sketch3.addConstraint(Sketcher.Constraint("Coincident", 14, 1, 15, 2))
sketch3.addConstraint(Sketcher.Constraint("Coincident", 15, 1, 14, 2))
sketch3.addConstraint(Sketcher.Constraint("Coincident", 16, 1, 17, 2))
sketch3.addConstraint(Sketcher.Constraint("Coincident", 17, 1, 16, 2))
sketch3.addConstraint(Sketcher.Constraint("Coincident", 18, 1, 19, 2))
sketch3.addConstraint(Sketcher.Constraint("Coincident", 19, 1, 18, 2))
sketch3.addConstraint(Sketcher.Constraint("Coincident", 20, 1, 21, 2))
sketch3.addConstraint(Sketcher.Constraint("Coincident", 21, 1, 20, 2))
sketch3.addConstraint(Sketcher.Constraint("Coincident", 22, 1, 23, 2))
sketch3.addConstraint(Sketcher.Constraint("Coincident", 23, 1, 22, 2))
sketch3.addConstraint(Sketcher.Constraint("Coincident", 24, 1, 25, 2))
sketch3.addConstraint(Sketcher.Constraint("Coincident", 25, 1, 24, 2))
sketch3.addConstraint(Sketcher.Constraint("Coincident", 26, 1, 27, 2))
sketch3.addConstraint(Sketcher.Constraint("Coincident", 27, 1, 26, 2))
sketch3.addConstraint(Sketcher.Constraint("Coincident", 28, 1, 29, 2))
sketch3.addConstraint(Sketcher.Constraint("Coincident", 29, 1, 28, 2))
sketch3.addConstraint(Sketcher.Constraint("Coincident", 30, 1, 31, 2))
sketch3.addConstraint(Sketcher.Constraint("Coincident", 31, 1, 30, 2))
sketch3.addConstraint(Sketcher.Constraint("Horizontal", 0))
sketch3.addConstraint(Sketcher.Constraint("Horizontal", 2))
sketch3.addConstraint(Sketcher.Constraint("Vertical", 5))
sketch3.addConstraint(Sketcher.Constraint("Vertical", 7))
sketch3.addConstraint(Sketcher.Constraint("Horizontal", 9))
sketch3.addConstraint(Sketcher.Constraint("Horizontal", 11))
sketch3.addConstraint(Sketcher.Constraint("Vertical", 12))
sketch3.addConstraint(Sketcher.Constraint("Vertical", 14))
sketch3.addConstraint(Sketcher.Constraint("Vertical", 17))
sketch3.addConstraint(Sketcher.Constraint("Vertical", 19))
sketch3.addConstraint(Sketcher.Constraint("Horizontal", 20))
sketch3.addConstraint(Sketcher.Constraint("Horizontal", 22))
sketch3.addConstraint(Sketcher.Constraint("Horizontal", 25))
sketch3.addConstraint(Sketcher.Constraint("Horizontal", 27))
sketch3.addConstraint(Sketcher.Constraint("Vertical", 28))
sketch3.addConstraint(Sketcher.Constraint("Vertical", 30))
sketch3.addConstraint(Sketcher.Constraint("Equal", 1, 3))
sketch3.addConstraint(Sketcher.Constraint("Equal", 3, 4))
sketch3.addConstraint(Sketcher.Constraint("Equal", 4, 6))
sketch3.addConstraint(Sketcher.Constraint("Equal", 6, 8))
sketch3.addConstraint(Sketcher.Constraint("Equal", 8, 10))
sketch3.addConstraint(Sketcher.Constraint("Equal", 10, 13))
sketch3.addConstraint(Sketcher.Constraint("Equal", 13, 15))
sketch3.addConstraint(Sketcher.Constraint("Equal", 15, 16))
sketch3.addConstraint(Sketcher.Constraint("Equal", 16, 18))
sketch3.addConstraint(Sketcher.Constraint("Equal", 18, 21))
sketch3.addConstraint(Sketcher.Constraint("Equal", 21, 23))
sketch3.addConstraint(Sketcher.Constraint("Equal", 23, 24))
sketch3.addConstraint(Sketcher.Constraint("Equal", 24, 26))
sketch3.addConstraint(Sketcher.Constraint("Equal", 26, 29))
sketch3.addConstraint(Sketcher.Constraint("Equal", 29, 31))
sketch3.addConstraint(Sketcher.Constraint("Symmetric", 6, 3, 16, 3, -1, 1))
sketch3.addConstraint(Sketcher.Constraint("Symmetric", 4, 3, 18, 3, -1, 1))
sketch3.addConstraint(Sketcher.Constraint("Symmetric", 1, 3, 21, 3, -1, 1))
sketch3.addConstraint(Sketcher.Constraint("Symmetric", 3, 3, 23, 3, -1, 1))
sketch3.addConstraint(Sketcher.Constraint("Symmetric", 8, 3, 24, 3, -1, 1))
sketch3.addConstraint(Sketcher.Constraint("Symmetric", 10, 3, 26, 3, -1, 1))
sketch3.addConstraint(Sketcher.Constraint("Symmetric", 13, 3, 29, 3, -1, 1))
sketch3.addConstraint(Sketcher.Constraint("Symmetric", 15, 3, 31, 3, -1, 1))
sketch3.addConstraint(Sketcher.Constraint("Symmetric", 3, 3, 8, 3, -2))
sketch3.addConstraint(Sketcher.Constraint("Symmetric", 1, 3, 10, 3, -2))
sketch3.addConstraint(Sketcher.Constraint("Symmetric", 4, 3, 13, 3, -2))
sketch3.addConstraint(Sketcher.Constraint("Symmetric", 6, 3, 15, 3, -2))
sketch3.addConstraint(Sketcher.Constraint("Horizontal", 1, 3, 3, 3))
sketch3.addConstraint(Sketcher.Constraint("Horizontal", 10, 3, 0, 1))
sketch3.addConstraint(Sketcher.Constraint("Horizontal", 1, 1, 2, 1))
sketch3.addConstraint(Sketcher.Constraint("Horizontal", 3, 1, 8, 1))
sketch3.addConstraint(Sketcher.Constraint("Horizontal", 9, 1, 10, 1))
sketch3.addConstraint(Sketcher.Constraint("Horizontal", 26, 3, 20, 1))
sketch3.addConstraint(Sketcher.Constraint("Horizontal", 21, 1, 22, 1))
sketch3.addConstraint(Sketcher.Constraint("Horizontal", 23, 1, 24, 1))
sketch3.addConstraint(Sketcher.Constraint("Horizontal", 25, 1, 26, 1))
sketch3.addConstraint(Sketcher.Constraint("Vertical", 4, 3, 6, 3))
sketch3.addConstraint(Sketcher.Constraint("Vertical", 31, 3, 4, 1))
sketch3.addConstraint(Sketcher.Constraint("Vertical", 5, 1, 6, 1))
sketch3.addConstraint(Sketcher.Constraint("Vertical", 18, 3, 12, 1))
sketch3.addConstraint(Sketcher.Constraint("Vertical", 13, 1, 14, 1))
sketch3.addConstraint(Sketcher.Constraint("Vertical", 15, 1, 16, 1))
sketch3.addConstraint(Sketcher.Constraint("Vertical", 17, 1, 18, 1))
sketch3.addConstraint(Sketcher.Constraint("Vertical", 7, 1, 28, 1))
sketch3.addConstraint(Sketcher.Constraint("Vertical", 29, 1, 30, 1))
sketch3.addConstraint(Sketcher.Constraint("Radius", 1, Q("0.025 in")))
sketch3.addConstraint(Sketcher.Constraint("DistanceX", 1, 3, -1, 1, Q("0.6 in")))
sketch3.addConstraint(Sketcher.Constraint("DistanceY", -1, 1, 4, 3, Q("0.6 in")))
sketch3.addConstraint(Sketcher.Constraint("DistanceX", 4, 3, 13, 3, Q("1.5 in")))
sketch3.addConstraint(Sketcher.Constraint("DistanceY", 21, 3, 10, 3, Q("1.5 in")))
sketch3.addConstraint(Sketcher.Constraint("DistanceX", 3, 3, -1, 1, Q("0.31 in")))
sketch3.addConstraint(Sketcher.Constraint("DistanceY", -1, 1, 6, 3, Q("0.31 in")))
pocket2 = body.newObject("PartDesign::Pocket", "Pocket001")
pocket2.Profile = sketch3
pocket2.Type = "ThroughAll"
doc.recompute()

fillet = body.newObject("PartDesign::Fillet", "Fillet")
fillet.Base = (pocket2, edges_at(pocket2, [
    (6.858, -4.703, 0),
    (6.858, 4.703, 0),
    (-17.272, 17.272, 0),
    (-17.272, -17.272, 0),
    (17.272, -17.272, 0),
    (17.272, 17.272, 0),
    (-4.703, -6.858, 0),
    (4.703, -6.858, 0),
    (-6.858, 4.703, 0),
    (-6.858, -4.703, 0),
    (4.703, 6.858, 0),
    (-4.703, 6.858, 0),
]))
fillet.Radius = Q("0.1 in")
doc.recompute()

fillet2 = body.newObject("PartDesign::Fillet", "Fillet001")
fillet2.Base = (fillet, edges_at(fillet, [
    (14.986, 4.064, 0),
    (19.05, 4.064, 0),
    (19.05, -4.064, 0),
    (14.986, -4.064, 0),
    (4.064, -14.986, 0),
    (4.064, -19.05, 0),
    (-4.064, -19.05, 0),
    (-4.064, -14.986, 0),
    (-14.986, -4.064, 0),
    (-19.05, -4.064, 0),
    (-19.05, 4.064, 0),
    (-14.986, 4.064, 0),
    (-19.05, 19.05, 0),
    (19.05, 19.05, 0),
    (19.05, -19.05, 0),
    (-19.05, -19.05, 0),
    (-4.064, 14.986, 0),
    (-4.064, 19.05, 0),
    (4.064, 19.05, 0),
    (4.064, 14.986, 0),
]))
fillet2.Radius = Q("0.07 in")
doc.recompute()

fillet3 = body.newObject("PartDesign::Fillet", "Fillet002")
fillet3.Base = (fillet2, edges_at(fillet2, [
    (12.442, 10.287, 0),
    (16.002, 10.287, 0),
    (16.002, 7.239, 0),
    (16.002, -7.239, 0),
    (16.002, -10.287, 0),
    (12.442, -10.287, 0),
    (-7.239, -16.002, 0),
    (-10.287, -16.002, 0),
    (-10.287, -12.442, 0),
    (10.287, -12.442, 0),
    (10.287, -16.002, 0),
    (7.239, -16.002, 0),
    (-16.002, 7.239, 0),
    (-16.002, 10.287, 0),
    (-12.442, 10.287, 0),
    (-12.442, -10.287, 0),
    (-16.002, -10.287, 0),
    (-14.986, -7.239, 0),
    (-10.287, 12.442, 0),
    (-10.287, 16.002, 0),
    (-7.239, 16.002, 0),
    (7.239, 16.002, 0),
    (10.287, 16.002, 0),
    (10.287, 12.442, 0),
]))
fillet3.Radius = Q("0.015625 in")

sketch4 = body.newObject("Sketcher::SketchObject", "Sketch003")
sketch4.AttachmentSupport = (doc.getObject("XY_Plane"), [""])
sketch4.MapMode = "FlatFace"
sketch4.AttachmentOffset = App.Placement(App.Vector(0, 0, 18 * 25.4), App.Rotation())
sketch4.addGeometry(Part.LineSegment(App.Vector(-21, 22, 0), App.Vector(-21, -22, 0)), False)
sketch4.addGeometry(Part.LineSegment(App.Vector(-21, -22, 0), App.Vector(21, -22, 0)), False)
sketch4.addGeometry(Part.LineSegment(App.Vector(21, -22, 0), App.Vector(21, 22, 0)), False)
sketch4.addGeometry(Part.LineSegment(App.Vector(21, 22, 0), App.Vector(-21, 22, 0)), False)
sketch4.addConstraint(Sketcher.Constraint("Coincident", 0, 2, 1, 1))
sketch4.addConstraint(Sketcher.Constraint("Coincident", 1, 2, 2, 1))
sketch4.addConstraint(Sketcher.Constraint("Coincident", 2, 2, 3, 1))
sketch4.addConstraint(Sketcher.Constraint("Coincident", 3, 2, 0, 1))
sketch4.addConstraint(Sketcher.Constraint("Vertical", 0))
sketch4.addConstraint(Sketcher.Constraint("Horizontal", 1))
sketch4.addConstraint(Sketcher.Constraint("Vertical", 2))
sketch4.addConstraint(Sketcher.Constraint("Horizontal", 3))
sketch4.addConstraint(Sketcher.Constraint("Symmetric", 0, 2, 2, 2, -1, 1))
sketch4.addConstraint(Sketcher.Constraint("DistanceX", 1, 1, 1, 2, 42.572454))
sketch4.addConstraint(Sketcher.Constraint("DistanceY", 0, 2, 0, 1, 44.858704))
pocket3 = body.newObject("PartDesign::Pocket", "Pocket002")
pocket3.Profile = sketch4
pocket3.Length = 549.8

doc.recompute()
